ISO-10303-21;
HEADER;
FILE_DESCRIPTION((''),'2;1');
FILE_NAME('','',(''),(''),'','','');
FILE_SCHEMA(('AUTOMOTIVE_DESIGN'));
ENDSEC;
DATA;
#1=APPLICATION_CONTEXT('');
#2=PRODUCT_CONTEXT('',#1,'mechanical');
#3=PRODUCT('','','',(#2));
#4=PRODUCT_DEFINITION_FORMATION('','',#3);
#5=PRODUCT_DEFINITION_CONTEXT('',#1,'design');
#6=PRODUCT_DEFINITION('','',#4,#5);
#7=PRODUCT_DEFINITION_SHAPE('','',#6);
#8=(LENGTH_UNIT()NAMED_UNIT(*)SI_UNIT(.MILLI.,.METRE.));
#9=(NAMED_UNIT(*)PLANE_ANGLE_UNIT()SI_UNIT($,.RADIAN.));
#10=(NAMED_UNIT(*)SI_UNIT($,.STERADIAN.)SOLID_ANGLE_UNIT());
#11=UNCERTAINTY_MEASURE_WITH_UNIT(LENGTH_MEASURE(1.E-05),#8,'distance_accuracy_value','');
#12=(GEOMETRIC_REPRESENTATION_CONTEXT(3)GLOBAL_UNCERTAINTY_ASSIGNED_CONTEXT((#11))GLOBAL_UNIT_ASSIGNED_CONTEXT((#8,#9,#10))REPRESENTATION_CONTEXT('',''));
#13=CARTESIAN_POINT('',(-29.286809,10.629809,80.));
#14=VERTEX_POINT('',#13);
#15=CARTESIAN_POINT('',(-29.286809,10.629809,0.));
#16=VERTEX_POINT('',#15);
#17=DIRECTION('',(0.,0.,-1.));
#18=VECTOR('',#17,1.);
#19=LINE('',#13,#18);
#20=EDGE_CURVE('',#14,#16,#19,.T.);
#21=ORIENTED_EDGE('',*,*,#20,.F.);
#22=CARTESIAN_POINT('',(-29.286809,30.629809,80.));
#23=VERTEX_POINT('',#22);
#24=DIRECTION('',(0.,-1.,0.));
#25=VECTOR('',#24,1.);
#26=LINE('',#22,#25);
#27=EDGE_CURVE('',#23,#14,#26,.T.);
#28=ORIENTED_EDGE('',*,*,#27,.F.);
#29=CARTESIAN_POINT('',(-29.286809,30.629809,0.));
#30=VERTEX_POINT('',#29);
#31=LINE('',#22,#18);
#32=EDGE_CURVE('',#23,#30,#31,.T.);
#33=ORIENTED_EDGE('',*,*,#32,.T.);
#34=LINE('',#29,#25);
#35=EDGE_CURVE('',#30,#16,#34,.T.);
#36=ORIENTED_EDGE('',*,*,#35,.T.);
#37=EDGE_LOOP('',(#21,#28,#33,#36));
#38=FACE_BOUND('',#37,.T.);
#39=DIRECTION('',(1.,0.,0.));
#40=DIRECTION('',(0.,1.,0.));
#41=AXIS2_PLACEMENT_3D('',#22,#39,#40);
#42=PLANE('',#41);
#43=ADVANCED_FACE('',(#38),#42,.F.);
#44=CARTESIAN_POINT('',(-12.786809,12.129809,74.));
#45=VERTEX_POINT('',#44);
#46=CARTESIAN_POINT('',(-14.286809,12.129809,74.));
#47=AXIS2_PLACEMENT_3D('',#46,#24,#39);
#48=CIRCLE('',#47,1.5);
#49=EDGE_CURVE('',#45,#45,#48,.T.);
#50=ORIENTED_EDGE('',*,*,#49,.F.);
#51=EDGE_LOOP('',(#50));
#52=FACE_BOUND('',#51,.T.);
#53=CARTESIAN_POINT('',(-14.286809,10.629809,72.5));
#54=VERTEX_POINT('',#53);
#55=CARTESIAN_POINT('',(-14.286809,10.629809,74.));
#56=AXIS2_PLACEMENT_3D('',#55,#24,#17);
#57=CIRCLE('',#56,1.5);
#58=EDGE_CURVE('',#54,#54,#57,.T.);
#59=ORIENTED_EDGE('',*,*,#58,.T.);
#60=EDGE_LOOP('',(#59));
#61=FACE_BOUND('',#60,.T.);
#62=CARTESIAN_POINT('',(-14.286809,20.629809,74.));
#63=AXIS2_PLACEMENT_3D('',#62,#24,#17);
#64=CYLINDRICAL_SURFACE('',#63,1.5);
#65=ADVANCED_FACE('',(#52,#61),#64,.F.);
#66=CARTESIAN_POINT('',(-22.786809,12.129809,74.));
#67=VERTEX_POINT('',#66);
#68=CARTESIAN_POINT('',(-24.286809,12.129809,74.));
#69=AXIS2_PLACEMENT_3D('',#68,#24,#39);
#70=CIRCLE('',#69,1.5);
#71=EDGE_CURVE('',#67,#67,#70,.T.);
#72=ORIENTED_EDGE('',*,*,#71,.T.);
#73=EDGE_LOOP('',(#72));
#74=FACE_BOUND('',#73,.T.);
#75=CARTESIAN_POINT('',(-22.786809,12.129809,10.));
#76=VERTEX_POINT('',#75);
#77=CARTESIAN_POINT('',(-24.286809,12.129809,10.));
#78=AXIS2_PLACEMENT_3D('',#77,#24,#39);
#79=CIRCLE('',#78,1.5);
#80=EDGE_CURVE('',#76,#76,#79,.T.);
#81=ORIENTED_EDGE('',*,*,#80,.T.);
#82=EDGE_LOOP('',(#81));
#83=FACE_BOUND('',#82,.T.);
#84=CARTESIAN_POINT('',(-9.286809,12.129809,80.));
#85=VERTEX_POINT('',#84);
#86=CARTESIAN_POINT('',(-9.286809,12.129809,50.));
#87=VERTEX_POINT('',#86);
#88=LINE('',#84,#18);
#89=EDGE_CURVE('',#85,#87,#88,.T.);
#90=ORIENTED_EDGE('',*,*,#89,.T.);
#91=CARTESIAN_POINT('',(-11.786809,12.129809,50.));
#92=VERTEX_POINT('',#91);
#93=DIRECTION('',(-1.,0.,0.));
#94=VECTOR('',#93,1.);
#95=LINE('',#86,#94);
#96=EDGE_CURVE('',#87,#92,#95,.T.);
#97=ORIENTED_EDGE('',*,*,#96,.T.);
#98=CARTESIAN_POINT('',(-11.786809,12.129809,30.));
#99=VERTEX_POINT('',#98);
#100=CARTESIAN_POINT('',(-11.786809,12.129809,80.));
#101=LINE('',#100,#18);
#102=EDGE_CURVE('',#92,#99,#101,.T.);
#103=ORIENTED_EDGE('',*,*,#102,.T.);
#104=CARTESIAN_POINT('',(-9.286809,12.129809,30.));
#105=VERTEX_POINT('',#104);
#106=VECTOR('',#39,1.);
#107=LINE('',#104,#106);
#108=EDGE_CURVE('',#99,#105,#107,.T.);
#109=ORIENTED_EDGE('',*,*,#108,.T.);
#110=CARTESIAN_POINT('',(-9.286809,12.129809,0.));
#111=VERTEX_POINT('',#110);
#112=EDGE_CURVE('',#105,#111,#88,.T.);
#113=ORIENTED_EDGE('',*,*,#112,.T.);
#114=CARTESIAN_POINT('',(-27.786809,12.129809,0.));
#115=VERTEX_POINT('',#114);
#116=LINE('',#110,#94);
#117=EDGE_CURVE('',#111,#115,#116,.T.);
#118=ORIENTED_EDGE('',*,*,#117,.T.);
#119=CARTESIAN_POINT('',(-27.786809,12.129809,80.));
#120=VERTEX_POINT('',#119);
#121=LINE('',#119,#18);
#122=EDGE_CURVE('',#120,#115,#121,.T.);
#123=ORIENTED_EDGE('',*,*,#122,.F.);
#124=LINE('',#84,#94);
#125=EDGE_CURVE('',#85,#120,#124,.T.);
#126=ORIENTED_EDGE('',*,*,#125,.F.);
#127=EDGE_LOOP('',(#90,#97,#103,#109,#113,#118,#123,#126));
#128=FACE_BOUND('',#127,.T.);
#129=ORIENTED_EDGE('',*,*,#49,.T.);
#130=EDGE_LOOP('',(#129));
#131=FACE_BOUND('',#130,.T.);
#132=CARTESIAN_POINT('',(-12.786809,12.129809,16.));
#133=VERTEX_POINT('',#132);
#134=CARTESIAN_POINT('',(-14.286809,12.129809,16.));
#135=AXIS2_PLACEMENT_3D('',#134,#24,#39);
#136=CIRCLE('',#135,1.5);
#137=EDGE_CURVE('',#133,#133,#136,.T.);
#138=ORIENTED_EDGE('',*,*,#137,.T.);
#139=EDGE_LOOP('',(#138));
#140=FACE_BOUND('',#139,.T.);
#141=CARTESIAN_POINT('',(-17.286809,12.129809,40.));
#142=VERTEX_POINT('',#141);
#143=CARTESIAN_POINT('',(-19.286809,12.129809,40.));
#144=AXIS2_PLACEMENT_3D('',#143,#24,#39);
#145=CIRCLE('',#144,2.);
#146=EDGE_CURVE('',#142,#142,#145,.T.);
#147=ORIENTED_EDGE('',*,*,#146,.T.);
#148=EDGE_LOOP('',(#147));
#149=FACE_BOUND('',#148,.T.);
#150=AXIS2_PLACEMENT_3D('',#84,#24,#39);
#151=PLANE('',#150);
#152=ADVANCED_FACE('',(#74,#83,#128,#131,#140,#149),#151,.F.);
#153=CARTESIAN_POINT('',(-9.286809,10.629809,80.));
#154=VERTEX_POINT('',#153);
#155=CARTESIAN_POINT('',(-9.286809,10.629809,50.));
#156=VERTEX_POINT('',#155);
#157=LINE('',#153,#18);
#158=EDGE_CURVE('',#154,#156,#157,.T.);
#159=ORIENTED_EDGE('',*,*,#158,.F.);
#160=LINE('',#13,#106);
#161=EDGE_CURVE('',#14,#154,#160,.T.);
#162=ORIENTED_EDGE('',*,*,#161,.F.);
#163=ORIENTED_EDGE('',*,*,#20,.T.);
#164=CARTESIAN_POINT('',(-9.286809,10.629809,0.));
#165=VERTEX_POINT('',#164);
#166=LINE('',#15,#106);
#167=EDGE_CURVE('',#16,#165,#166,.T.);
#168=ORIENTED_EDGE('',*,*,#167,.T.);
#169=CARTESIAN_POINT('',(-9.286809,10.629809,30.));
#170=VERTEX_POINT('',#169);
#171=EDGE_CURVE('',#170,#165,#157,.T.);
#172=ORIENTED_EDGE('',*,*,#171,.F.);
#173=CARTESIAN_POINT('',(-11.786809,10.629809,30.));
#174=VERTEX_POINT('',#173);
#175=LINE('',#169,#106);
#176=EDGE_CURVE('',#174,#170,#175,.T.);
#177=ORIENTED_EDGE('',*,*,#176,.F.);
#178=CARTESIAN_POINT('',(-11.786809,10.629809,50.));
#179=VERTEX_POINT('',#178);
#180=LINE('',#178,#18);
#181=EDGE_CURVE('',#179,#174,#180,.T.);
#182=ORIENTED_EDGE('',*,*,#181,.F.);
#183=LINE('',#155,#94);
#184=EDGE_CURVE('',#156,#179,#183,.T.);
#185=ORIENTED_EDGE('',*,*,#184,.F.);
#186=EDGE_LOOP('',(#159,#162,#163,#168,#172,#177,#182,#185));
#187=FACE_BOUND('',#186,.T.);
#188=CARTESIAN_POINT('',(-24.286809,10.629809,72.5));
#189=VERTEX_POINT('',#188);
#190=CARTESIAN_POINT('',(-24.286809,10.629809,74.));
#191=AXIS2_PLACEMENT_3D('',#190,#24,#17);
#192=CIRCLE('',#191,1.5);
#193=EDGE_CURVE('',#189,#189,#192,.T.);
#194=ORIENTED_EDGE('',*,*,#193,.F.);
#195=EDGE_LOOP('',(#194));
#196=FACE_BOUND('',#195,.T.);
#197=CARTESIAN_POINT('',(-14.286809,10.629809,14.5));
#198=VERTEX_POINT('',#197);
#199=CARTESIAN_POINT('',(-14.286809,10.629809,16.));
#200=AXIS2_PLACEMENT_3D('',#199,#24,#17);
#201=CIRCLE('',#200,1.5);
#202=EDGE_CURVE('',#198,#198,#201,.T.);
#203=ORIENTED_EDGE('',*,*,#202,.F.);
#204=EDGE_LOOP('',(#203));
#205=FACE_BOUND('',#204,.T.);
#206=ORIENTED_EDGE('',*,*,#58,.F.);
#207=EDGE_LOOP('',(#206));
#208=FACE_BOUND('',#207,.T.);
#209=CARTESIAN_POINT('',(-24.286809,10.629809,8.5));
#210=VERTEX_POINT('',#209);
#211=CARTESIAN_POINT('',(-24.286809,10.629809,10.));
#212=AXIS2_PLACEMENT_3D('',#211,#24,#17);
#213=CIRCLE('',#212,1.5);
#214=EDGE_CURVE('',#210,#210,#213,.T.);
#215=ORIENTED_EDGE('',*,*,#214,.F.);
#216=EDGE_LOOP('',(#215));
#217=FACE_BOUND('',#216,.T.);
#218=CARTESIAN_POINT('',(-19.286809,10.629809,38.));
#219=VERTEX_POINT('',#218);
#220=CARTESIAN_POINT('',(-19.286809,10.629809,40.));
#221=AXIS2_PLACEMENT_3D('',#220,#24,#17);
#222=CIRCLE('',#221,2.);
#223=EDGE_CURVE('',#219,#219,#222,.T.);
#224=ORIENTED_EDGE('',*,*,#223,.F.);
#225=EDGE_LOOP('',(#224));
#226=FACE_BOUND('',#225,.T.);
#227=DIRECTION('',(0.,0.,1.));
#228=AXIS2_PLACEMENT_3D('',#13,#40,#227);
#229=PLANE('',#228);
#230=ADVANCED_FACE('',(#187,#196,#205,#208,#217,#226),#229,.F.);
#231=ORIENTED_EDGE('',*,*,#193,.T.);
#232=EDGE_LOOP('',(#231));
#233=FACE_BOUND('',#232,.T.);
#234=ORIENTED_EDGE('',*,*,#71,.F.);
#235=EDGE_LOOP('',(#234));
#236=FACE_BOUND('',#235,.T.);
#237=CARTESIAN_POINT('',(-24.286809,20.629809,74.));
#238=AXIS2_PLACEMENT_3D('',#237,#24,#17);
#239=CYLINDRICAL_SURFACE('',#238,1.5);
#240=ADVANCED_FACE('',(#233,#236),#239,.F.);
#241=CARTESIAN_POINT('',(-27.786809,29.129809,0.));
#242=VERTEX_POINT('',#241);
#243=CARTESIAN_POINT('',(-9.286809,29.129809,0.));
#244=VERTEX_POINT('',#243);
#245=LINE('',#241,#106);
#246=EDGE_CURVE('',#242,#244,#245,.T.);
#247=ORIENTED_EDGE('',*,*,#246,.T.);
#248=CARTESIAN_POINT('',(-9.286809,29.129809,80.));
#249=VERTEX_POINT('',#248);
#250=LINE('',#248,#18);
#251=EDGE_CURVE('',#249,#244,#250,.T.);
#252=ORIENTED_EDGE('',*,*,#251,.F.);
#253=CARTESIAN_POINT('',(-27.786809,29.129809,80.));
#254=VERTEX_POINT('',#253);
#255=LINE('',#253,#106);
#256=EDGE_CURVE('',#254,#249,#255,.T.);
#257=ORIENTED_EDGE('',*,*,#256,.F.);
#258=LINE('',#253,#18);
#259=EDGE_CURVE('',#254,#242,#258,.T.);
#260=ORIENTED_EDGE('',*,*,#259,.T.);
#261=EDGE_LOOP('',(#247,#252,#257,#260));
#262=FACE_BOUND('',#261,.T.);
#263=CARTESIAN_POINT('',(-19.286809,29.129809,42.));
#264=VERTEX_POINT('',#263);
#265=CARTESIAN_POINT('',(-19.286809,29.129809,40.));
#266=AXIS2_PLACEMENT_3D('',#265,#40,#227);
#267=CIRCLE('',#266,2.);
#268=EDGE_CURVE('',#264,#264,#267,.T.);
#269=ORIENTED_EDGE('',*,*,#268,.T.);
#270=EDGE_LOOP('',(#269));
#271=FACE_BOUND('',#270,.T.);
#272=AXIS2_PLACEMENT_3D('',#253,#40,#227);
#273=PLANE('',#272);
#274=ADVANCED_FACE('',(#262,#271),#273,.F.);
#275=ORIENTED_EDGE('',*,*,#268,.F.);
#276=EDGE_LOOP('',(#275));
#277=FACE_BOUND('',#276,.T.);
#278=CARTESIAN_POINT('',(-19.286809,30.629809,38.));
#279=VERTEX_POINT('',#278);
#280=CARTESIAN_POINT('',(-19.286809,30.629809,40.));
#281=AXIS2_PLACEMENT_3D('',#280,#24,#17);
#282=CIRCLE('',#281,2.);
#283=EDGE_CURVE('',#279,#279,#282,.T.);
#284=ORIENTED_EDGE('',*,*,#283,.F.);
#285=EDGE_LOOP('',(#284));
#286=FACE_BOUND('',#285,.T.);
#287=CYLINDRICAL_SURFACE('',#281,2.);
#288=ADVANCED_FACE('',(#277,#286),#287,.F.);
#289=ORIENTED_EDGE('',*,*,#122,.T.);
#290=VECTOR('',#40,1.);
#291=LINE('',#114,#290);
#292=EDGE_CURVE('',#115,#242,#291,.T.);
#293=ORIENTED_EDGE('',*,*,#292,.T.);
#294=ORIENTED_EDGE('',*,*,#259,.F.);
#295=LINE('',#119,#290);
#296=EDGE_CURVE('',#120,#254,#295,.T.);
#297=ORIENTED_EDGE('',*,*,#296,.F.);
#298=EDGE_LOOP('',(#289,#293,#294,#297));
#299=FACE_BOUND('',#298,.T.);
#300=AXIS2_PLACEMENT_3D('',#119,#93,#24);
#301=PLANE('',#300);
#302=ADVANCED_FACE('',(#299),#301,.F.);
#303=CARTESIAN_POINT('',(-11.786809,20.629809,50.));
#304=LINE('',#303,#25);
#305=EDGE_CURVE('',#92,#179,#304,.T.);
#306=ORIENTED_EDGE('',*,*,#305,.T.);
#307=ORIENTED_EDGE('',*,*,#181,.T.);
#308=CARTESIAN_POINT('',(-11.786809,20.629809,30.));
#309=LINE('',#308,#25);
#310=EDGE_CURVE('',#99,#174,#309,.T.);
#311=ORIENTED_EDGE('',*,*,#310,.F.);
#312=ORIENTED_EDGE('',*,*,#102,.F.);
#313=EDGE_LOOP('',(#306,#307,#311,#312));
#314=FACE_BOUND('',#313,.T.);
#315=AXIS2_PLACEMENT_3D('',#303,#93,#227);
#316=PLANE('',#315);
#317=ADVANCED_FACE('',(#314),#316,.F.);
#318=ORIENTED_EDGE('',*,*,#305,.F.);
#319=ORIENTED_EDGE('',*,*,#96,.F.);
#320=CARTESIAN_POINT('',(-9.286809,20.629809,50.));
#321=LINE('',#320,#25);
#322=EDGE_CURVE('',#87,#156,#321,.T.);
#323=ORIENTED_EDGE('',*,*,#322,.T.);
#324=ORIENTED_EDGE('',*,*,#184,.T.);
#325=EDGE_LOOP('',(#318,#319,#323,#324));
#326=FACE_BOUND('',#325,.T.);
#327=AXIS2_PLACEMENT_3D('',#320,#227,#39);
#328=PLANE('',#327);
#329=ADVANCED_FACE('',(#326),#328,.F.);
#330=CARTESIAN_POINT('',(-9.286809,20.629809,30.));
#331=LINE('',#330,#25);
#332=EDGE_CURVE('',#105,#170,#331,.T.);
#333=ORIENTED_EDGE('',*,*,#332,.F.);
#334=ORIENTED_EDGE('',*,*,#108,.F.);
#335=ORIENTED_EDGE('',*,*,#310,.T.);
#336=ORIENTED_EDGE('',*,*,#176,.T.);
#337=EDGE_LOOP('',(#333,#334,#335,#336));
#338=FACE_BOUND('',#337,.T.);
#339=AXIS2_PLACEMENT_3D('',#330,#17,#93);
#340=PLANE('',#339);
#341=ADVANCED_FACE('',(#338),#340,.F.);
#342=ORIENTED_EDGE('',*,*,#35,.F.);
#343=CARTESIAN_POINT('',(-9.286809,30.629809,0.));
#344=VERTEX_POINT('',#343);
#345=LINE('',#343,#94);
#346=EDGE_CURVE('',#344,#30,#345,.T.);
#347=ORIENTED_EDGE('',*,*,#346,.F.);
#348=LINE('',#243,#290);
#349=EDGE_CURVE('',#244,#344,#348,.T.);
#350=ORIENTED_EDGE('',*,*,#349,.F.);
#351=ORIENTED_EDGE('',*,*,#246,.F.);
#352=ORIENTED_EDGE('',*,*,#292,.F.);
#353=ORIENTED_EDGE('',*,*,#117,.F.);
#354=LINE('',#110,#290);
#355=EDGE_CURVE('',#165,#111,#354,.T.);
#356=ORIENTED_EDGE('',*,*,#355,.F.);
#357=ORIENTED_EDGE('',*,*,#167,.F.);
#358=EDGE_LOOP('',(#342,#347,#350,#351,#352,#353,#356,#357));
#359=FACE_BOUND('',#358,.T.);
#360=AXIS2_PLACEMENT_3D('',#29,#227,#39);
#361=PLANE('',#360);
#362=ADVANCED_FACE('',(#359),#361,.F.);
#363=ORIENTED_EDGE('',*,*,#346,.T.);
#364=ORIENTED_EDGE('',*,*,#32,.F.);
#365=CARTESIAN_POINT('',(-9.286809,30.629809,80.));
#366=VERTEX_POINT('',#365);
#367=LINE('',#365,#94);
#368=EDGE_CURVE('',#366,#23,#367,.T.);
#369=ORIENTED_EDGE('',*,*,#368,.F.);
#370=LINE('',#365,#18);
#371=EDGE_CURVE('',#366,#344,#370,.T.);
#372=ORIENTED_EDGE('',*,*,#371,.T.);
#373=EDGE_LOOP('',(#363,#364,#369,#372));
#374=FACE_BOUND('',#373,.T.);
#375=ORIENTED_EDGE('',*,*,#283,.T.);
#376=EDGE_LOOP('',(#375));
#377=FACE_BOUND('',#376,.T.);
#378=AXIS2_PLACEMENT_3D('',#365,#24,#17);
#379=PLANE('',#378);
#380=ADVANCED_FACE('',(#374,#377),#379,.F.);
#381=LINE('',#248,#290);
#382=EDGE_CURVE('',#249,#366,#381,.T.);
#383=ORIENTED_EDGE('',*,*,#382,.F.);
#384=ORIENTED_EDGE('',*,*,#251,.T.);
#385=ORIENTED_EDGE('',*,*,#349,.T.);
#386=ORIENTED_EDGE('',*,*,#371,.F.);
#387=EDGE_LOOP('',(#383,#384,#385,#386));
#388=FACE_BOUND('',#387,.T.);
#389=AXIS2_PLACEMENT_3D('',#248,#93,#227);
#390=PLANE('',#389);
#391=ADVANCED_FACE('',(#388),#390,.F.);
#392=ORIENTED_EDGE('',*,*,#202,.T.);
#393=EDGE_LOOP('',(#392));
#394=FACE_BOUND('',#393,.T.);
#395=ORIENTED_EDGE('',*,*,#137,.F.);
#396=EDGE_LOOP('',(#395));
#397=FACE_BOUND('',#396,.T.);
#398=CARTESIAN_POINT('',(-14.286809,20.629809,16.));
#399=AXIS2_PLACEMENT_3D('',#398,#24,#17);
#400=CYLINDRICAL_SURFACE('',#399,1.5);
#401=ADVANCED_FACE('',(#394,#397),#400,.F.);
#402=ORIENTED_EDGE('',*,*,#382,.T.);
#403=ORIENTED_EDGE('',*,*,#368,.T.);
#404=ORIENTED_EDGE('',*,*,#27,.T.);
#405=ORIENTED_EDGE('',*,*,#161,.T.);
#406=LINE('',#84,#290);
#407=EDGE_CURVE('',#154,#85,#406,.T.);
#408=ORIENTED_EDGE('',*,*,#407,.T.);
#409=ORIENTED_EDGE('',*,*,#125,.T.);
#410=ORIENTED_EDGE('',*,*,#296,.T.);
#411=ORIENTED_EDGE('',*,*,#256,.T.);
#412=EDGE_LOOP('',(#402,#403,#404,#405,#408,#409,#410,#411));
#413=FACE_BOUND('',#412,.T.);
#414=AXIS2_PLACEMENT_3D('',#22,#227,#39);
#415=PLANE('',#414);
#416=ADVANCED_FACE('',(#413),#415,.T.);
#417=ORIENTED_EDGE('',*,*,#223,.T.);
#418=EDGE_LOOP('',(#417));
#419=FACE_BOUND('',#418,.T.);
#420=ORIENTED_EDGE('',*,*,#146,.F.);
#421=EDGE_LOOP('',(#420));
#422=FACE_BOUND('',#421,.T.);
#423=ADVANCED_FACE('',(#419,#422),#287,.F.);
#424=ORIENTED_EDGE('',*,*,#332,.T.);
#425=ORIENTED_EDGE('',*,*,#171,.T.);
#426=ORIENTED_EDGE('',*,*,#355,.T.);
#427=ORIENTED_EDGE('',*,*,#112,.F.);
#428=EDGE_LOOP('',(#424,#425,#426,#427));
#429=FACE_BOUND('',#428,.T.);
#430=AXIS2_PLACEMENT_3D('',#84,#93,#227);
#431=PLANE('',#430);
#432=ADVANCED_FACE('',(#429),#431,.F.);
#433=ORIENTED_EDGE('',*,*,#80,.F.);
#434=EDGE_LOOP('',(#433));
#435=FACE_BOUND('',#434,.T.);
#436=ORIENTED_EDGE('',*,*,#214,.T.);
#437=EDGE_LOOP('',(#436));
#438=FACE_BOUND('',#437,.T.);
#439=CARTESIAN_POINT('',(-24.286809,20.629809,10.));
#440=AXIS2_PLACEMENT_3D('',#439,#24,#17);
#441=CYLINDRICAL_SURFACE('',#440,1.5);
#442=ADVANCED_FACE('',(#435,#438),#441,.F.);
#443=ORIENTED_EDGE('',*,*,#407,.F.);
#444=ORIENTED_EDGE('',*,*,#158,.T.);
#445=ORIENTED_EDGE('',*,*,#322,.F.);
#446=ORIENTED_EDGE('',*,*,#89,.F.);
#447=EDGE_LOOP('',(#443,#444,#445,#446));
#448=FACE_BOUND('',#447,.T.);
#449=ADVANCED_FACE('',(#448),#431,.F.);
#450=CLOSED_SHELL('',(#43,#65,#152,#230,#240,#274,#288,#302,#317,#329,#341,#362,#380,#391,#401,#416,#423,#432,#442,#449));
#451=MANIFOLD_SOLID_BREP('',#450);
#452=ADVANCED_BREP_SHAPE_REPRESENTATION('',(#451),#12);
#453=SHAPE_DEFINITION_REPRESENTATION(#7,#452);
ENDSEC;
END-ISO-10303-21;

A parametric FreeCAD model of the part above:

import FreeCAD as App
import Part
import Sketcher
from FreeCAD import Vector


def add_polygon(sketch, points):
    """Adds a closed chain of lines whose ends are joined by coincident constraints."""
    first, n = sketch.GeometryCount, len(points)
    for a, b in zip(points, points[1:] + points[:1]):
        sketch.addGeometry(Part.LineSegment(App.Vector(*a, 0), App.Vector(*b, 0)), False)
    for i in range(n):
        sketch.addConstraint(Sketcher.Constraint("Coincident", first + i, 2, first + (i + 1) % n, 1))

doc = App.newDocument("Part")
params = doc.addObject("Spreadsheet::Sheet", "Params")
for row, (alias, value) in enumerate([
    ("sketch1_width", "20 mm"),
    ("sketch1_height", "17 mm"),
    ("sketch1_width2", "18.5 mm"),
    ("pad1_length", "80 mm"),
    ("sketch2_diameter", "3 mm"),
    ("sketch2_height", "20 mm"),
    ("sketch2_width", "2.5 mm"),
    ("pocket1_length", "10 mm"),
    ("sketch3_diameter", "4 mm"),
], start=1):
    params.set(f"A{row}", alias)
    params.set(f"B{row}", "=" + value)
    params.setAlias(f"B{row}", alias)

body = doc.addObject("PartDesign::Body", "Body")

# Sketch on XY plane
sketch1 = body.newObject("Sketcher::SketchObject", "Sketch")
sketch1.AttachmentSupport = (doc.getObject("XY_Plane"), [""])
sketch1.MapMode = "FlatFace"
add_polygon(sketch1, [(-29.286809, 30.629809), (-29.286809, 10.629809), (-9.286809, 10.629809), (-9.286809, 12.129809), (-27.786809, 12.129809), (-27.786809, 29.129809), (-9.286809, 29.129809), (-9.286809, 30.629809)])  # lines 0-7
sketch1.addConstraint(Sketcher.Constraint("Vertical", 0))
sketch1.addConstraint(Sketcher.Constraint("Horizontal", 1))
sketch1.addConstraint(Sketcher.Constraint("Vertical", 2))
sketch1.addConstraint(Sketcher.Constraint("Horizontal", 3))
sketch1.addConstraint(Sketcher.Constraint("Vertical", 4))
sketch1.addConstraint(Sketcher.Constraint("Horizontal", 5))
sketch1.addConstraint(Sketcher.Constraint("Vertical", 6))
sketch1.addConstraint(Sketcher.Constraint("Horizontal", 7))
sketch1.addConstraint(Sketcher.Constraint("Vertical", 2, 2, 5, 2))
sketch1.addConstraint(Sketcher.Constraint("Equal", 7, 0))
sketch1.addConstraint(Sketcher.Constraint("Equal", 2, 6))
sketch1.addConstraint(Sketcher.Constraint("DistanceX", 1, 1, 1, 2, 20.0))
sketch1.addConstraint(Sketcher.Constraint("DistanceY", 4, 1, 4, 2, 17.0))
sketch1.addConstraint(Sketcher.Constraint("DistanceX", 3, 2, 3, 1, 18.5))
sketch1.addConstraint(Sketcher.Constraint("DistanceX", 0, 2, -1, 1, 29.286809))
sketch1.addConstraint(Sketcher.Constraint("DistanceY", -1, 1, 0, 2, 10.629809))
sketch1.setExpression("Constraints[19]", "Params.sketch1_width")
sketch1.setExpression("Constraints[20]", "Params.sketch1_height")
sketch1.setExpression("Constraints[21]", "Params.sketch1_width2")
pad1 = body.newObject("PartDesign::Pad", "Pad")
pad1.Profile = sketch1
pad1.setExpression("Length", "Params.pad1_length")

# Sketch on XZ plane
sketch2 = body.newObject("Sketcher::SketchObject", "Sketch001")
sketch2.AttachmentSupport = (doc.getObject("XZ_Plane"), [""])
sketch2.MapMode = "FlatFace"
sketch2.AttachmentOffset = App.Placement(Vector(0, 0, -10.629809), App.Rotation())
sketch2.addGeometry(Part.Circle(Vector(-14.286809, 74, 0), Vector(0, 0, 1), 1.5), False)  # 0
sketch2.addGeometry(Part.Circle(Vector(-24.286809, 74, 0), Vector(0, 0, 1), 1.5), False)  # 1
sketch2.addGeometry(Part.Circle(Vector(-14.286809, 16, 0), Vector(0, 0, 1), 1.5), False)  # 2
sketch2.addGeometry(Part.Circle(Vector(-24.286809, 10, 0), Vector(0, 0, 1), 1.5), False)  # 3
add_polygon(sketch2, [(-11.786809, 50), (-11.786809, 30), (-9.286809, 30), (-9.286809, 50)])  # lines 4-7
sketch2.addConstraint(Sketcher.Constraint("Vertical", 4))
sketch2.addConstraint(Sketcher.Constraint("Horizontal", 5))
sketch2.addConstraint(Sketcher.Constraint("Vertical", 6))
sketch2.addConstraint(Sketcher.Constraint("Horizontal", 7))
sketch2.addConstraint(Sketcher.Constraint("Equal", 0, 1))
sketch2.addConstraint(Sketcher.Constraint("Equal", 1, 2))
sketch2.addConstraint(Sketcher.Constraint("Equal", 2, 3))
sketch2.addConstraint(Sketcher.Constraint("Horizontal", 0, 3, 1, 3))
sketch2.addConstraint(Sketcher.Constraint("Vertical", 0, 3, 2, 3))
sketch2.addConstraint(Sketcher.Constraint("Vertical", 1, 3, 3, 3))
sketch2.addConstraint(Sketcher.Constraint("Diameter", 0, 3.0))
sketch2.addConstraint(Sketcher.Constraint("DistanceY", 4, 2, 4, 1, 20.0))
sketch2.addConstraint(Sketcher.Constraint("DistanceX", 5, 1, 5, 2, 2.5))
sketch2.addConstraint(Sketcher.Constraint("DistanceY", -1, 1, 0, 3, 74.0))
sketch2.addConstraint(Sketcher.Constraint("DistanceY", -1, 1, 2, 3, 16.0))
sketch2.addConstraint(Sketcher.Constraint("DistanceY", -1, 1, 3, 3, 10.0))
sketch2.addConstraint(Sketcher.Constraint("DistanceY", -1, 1, 4, 2, 30.0))
sketch2.addConstraint(Sketcher.Constraint("DistanceX", 1, 3, 0, 3, 10.0))
sketch2.addConstraint(Sketcher.Constraint("DistanceX", 2, 3, 5, 2, 5.0))
sketch2.addConstraint(Sketcher.Constraint("DistanceX", 0, 3, -1, 1, 14.286809))
sketch2.setExpression("Constraints[14]", "Params.sketch2_diameter")
sketch2.setExpression("Constraints[15]", "Params.sketch2_height")
sketch2.setExpression("Constraints[16]", "Params.sketch2_width")
pocket1 = body.newObject("PartDesign::Pocket", "Pocket")
pocket1.Profile = sketch2
pocket1.setExpression("Length", "Params.pocket1_length")

# Sketch on XZ plane
sketch3 = body.newObject("Sketcher::SketchObject", "Sketch002")
sketch3.AttachmentSupport = (doc.getObject("XZ_Plane"), [""])
sketch3.MapMode = "FlatFace"
sketch3.AttachmentOffset = App.Placement(Vector(0, 0, -10.629809), App.Rotation())
sketch3.addGeometry(Part.Circle(Vector(-19.286809, 40, 0), Vector(0, 0, 1), 2), False)
sketch3.addConstraint(Sketcher.Constraint("Diameter", 0, 4.0))
sketch3.addConstraint(Sketcher.Constraint("DistanceY", -1, 1, 0, 3, 40.0))
sketch3.addConstraint(Sketcher.Constraint("DistanceX", 0, 3, -1, 1, 19.286809))
sketch3.setExpression("Constraints[0]", "Params.sketch3_diameter")
pocket2 = body.newObject("PartDesign::Pocket", "Pocket001")
pocket2.Profile = sketch3
pocket2.Type = "ThroughAll"

doc.recompute()
